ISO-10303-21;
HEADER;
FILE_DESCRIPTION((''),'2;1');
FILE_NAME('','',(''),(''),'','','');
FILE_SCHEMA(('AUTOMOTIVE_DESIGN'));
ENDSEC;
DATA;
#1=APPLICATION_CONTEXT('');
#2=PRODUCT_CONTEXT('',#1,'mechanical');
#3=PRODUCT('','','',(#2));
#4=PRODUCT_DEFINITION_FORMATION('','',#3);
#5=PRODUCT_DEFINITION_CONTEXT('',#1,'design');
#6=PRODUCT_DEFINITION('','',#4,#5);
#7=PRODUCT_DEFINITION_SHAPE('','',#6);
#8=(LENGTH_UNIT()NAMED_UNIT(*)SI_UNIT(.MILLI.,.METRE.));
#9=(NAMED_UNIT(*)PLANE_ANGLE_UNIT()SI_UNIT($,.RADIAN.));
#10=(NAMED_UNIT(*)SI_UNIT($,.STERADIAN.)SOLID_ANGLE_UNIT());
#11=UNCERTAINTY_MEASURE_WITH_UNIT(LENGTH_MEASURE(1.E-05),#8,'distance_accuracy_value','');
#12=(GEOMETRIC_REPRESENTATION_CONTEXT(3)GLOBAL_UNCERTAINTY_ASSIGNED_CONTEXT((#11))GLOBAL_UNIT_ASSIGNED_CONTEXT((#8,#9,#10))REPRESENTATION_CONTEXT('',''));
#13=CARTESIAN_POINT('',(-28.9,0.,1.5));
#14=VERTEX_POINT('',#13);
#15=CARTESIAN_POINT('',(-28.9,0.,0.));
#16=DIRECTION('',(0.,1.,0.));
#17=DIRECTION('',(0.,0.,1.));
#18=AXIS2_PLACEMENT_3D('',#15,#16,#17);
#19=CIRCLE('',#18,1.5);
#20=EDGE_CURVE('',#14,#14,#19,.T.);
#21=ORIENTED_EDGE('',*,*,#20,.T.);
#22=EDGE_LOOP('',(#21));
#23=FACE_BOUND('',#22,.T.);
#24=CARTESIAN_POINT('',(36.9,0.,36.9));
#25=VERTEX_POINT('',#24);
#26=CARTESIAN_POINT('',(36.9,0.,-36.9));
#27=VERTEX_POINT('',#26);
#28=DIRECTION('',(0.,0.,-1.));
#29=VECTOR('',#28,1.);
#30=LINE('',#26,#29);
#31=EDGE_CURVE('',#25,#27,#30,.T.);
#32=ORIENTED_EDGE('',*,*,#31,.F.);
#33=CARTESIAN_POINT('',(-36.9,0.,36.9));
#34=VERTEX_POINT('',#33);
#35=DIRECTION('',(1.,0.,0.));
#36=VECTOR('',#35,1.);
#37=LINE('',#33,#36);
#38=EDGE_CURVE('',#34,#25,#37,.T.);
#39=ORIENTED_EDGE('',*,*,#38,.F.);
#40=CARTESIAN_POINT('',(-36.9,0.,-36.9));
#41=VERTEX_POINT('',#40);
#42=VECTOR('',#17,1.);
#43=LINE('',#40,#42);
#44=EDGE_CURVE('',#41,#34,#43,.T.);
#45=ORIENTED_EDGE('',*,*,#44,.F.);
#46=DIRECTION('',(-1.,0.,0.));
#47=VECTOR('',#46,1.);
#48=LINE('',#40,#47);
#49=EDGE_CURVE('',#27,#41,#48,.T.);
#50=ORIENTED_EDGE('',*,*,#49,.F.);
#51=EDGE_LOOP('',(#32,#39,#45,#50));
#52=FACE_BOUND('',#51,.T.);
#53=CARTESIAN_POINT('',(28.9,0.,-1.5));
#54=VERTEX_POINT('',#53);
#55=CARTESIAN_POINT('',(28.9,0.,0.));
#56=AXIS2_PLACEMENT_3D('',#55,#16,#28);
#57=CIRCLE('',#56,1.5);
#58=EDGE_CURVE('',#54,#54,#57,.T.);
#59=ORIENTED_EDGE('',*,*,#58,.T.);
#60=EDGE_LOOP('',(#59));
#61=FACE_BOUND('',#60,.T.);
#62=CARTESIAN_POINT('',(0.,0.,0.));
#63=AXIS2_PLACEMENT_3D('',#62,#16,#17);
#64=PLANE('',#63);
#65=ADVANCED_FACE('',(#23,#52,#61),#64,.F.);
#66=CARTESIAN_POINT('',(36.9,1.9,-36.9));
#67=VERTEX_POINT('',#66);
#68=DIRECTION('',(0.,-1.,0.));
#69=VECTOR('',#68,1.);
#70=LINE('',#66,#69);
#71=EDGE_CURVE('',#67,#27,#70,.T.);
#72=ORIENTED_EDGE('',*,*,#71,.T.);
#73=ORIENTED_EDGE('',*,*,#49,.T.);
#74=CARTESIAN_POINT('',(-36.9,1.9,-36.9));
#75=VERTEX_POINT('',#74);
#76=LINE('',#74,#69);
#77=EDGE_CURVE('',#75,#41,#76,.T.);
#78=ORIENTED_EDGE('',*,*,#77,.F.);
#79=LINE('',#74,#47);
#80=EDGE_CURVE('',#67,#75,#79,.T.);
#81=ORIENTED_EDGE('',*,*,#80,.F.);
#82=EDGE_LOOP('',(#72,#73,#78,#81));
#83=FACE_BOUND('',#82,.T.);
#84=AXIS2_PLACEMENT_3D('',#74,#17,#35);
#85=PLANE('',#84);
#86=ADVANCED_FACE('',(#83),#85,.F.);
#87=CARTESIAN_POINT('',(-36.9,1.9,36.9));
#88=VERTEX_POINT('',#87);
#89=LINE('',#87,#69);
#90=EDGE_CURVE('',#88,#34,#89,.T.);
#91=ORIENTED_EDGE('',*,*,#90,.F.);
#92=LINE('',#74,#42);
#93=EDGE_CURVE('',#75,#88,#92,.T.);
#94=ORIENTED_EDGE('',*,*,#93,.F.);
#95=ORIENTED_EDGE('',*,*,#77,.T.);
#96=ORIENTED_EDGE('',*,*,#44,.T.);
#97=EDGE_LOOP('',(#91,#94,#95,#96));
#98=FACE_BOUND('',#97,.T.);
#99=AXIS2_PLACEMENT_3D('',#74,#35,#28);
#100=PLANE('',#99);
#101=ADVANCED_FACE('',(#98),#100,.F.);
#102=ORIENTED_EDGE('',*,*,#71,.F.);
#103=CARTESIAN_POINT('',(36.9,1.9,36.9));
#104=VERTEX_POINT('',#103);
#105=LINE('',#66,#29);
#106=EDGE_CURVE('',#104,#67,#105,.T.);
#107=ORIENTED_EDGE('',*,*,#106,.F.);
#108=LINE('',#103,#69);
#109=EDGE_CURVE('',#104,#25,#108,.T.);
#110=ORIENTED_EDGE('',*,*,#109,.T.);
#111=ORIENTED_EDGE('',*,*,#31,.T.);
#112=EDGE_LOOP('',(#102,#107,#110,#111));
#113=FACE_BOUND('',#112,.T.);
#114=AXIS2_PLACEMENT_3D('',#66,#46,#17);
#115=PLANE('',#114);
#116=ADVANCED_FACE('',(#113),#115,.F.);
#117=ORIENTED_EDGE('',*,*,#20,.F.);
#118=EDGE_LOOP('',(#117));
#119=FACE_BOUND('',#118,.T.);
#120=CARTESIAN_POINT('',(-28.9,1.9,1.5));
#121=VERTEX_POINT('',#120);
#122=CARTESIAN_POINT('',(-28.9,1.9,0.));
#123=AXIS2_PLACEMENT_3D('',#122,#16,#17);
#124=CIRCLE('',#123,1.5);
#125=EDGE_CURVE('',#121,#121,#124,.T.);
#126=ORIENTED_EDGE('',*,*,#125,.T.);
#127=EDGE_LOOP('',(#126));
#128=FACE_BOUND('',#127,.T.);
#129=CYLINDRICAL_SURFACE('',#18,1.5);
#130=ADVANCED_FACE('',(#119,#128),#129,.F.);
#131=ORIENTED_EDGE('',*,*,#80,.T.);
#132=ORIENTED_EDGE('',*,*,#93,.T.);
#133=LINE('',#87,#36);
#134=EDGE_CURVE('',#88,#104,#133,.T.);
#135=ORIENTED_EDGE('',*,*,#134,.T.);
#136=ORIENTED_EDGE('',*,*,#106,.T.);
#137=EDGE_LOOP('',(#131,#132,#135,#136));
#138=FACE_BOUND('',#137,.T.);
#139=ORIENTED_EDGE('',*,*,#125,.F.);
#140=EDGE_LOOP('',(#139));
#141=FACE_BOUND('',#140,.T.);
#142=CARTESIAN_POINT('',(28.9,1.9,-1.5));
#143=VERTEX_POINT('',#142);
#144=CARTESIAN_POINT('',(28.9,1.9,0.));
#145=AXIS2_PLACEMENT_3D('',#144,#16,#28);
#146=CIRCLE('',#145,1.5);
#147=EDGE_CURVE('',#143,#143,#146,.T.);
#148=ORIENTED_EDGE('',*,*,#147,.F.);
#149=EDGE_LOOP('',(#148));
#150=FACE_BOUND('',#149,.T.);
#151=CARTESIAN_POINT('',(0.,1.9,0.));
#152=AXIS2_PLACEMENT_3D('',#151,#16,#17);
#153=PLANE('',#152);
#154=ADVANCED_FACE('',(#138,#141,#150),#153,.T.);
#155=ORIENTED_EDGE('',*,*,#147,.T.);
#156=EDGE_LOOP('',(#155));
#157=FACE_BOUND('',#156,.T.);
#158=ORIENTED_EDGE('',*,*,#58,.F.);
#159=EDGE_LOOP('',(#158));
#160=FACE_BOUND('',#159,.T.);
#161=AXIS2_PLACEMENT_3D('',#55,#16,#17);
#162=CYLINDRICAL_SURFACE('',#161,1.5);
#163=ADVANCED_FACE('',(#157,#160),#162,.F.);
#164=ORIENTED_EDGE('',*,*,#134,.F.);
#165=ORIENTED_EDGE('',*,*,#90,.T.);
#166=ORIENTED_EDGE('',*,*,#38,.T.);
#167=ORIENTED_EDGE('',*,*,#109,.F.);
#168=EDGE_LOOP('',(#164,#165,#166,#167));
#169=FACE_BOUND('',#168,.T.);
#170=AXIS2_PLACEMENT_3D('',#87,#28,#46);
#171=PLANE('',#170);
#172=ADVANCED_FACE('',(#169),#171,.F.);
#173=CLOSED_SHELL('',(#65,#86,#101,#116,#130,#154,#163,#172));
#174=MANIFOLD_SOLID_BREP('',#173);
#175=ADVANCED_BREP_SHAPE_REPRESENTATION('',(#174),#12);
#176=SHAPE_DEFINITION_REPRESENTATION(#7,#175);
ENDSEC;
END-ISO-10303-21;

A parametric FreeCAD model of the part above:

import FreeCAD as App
import Part
import Sketcher

V = App.Vector

doc = App.newDocument("Part")
body = doc.addObject("PartDesign::Body", "Body")

# Sketch on XZ plane
sketch1 = body.newObject("Sketcher::SketchObject", "Sketch")
sketch1.AttachmentSupport = (doc.getObject("XZ_Plane"), [""])
sketch1.MapMode = "FlatFace"
sketch1.addGeometry([
    Part.LineSegment(V(-36.9, -36.9, 0), V(-36.9, 36.9, 0)),
    Part.LineSegment(V(-36.9, 36.9, 0), V(36.9, 36.9, 0)),
    Part.LineSegment(V(36.9, 36.9, 0), V(36.9, -36.9, 0)),
    Part.LineSegment(V(36.9, -36.9, 0), V(-36.9, -36.9, 0)),
], False)
sketch1.addConstraint([
    Sketcher.Constraint("Coincident", 0, 2, 1, 1),
    Sketcher.Constraint("Coincident", 1, 2, 2, 1),
    Sketcher.Constraint("Coincident", 2, 2, 3, 1),
    Sketcher.Constraint("Coincident", 3, 2, 0, 1),
    Sketcher.Constraint("Vertical", 0),
    Sketcher.Constraint("Horizontal", 1),
    Sketcher.Constraint("Vertical", 2),
    Sketcher.Constraint("Horizontal", 3),
    Sketcher.Constraint("Symmetric", 0, 2, 2, 2, -1, 1),
    Sketcher.Constraint("Equal", 3, 0),
    Sketcher.Constraint("DistanceX", 1, 1, 1, 2, 73.8),
])
pad1 = body.newObject("PartDesign::Pad", "Pad")
pad1.Profile = sketch1
pad1.Length = 1.9
pad1.Reversed = True

# Sketch on XZ plane
sketch2 = body.newObject("Sketcher::SketchObject", "Sketch001")
sketch2.AttachmentSupport = (doc.getObject("XZ_Plane"), [""])
sketch2.MapMode = "FlatFace"
sketch2.AttachmentOffset = App.Placement(V(0, 0, -1.9), App.Rotation())
sketch2.addGeometry([
    Part.Circle(V(-28.9, 0, 0), V(0, 0, 1), 1.5),
    Part.Circle(V(28.9, 0, 0), V(0, 0, 1), 1.5),
], False)
sketch2.addConstraint([
    Sketcher.Constraint("Equal", 0, 1),
    Sketcher.Constraint("Symmetric", 0, 3, 1, 3, -1, 1),
    Sketcher.Constraint("PointOnObject", 0, 3, -1),
    Sketcher.Constraint("Diameter", 0, 3.0),
    Sketcher.Constraint("DistanceX", 0, 3, -1, 1, 28.9),
])
pocket1 = body.newObject("PartDesign::Pocket", "Pocket")
pocket1.Profile = sketch2
pocket1.Type = "ThroughAll"
pocket1.Midplane = True

doc.recompute()
